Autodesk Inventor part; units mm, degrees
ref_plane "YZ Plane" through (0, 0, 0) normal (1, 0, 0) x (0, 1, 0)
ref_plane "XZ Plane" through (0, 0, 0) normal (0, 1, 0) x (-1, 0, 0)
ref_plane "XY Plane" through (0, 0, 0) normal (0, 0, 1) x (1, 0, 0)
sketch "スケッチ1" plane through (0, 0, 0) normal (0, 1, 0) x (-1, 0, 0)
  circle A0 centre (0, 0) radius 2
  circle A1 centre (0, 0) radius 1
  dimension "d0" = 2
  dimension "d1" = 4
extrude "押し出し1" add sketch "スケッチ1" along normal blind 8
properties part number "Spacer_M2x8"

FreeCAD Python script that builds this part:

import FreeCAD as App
import Part
import Sketcher

V = App.Vector
Q = App.Units.Quantity

doc = App.newDocument("Part")
body = doc.addObject("PartDesign::Body", "Body")

# Sketch on XZ plane
sketch1 = doc.addObject("Sketcher::SketchObject", "Sketch")
body.addObject(sketch1)
sketch1.AttachmentSupport = (doc.XZ_Plane, [""])
sketch1.MapMode = "FlatFace"
sketch1.addGeometry(Part.Circle(V(0, 0, 0), V(0, 0, 1), 2), False)
sketch1.addGeometry(Part.Circle(V(0, 0, 0), V(0, 0, 1), 1), False)
sketch1.addConstraint(Sketcher.Constraint("Coincident", 0, 3, -1, 1))
sketch1.addConstraint(Sketcher.Constraint("Coincident", 1, 3, -1, 1))
sketch1.addConstraint(Sketcher.Constraint("Diameter", 0, Q("4 mm")))
sketch1.addConstraint(Sketcher.Constraint("Diameter", 1, Q("2 mm")))
pad1 = doc.addObject("PartDesign::Pad", "Pad")
body.addObject(pad1)
pad1.Profile = sketch1
pad1.Length = 8
pad1.Reversed = True

doc.recompute()
